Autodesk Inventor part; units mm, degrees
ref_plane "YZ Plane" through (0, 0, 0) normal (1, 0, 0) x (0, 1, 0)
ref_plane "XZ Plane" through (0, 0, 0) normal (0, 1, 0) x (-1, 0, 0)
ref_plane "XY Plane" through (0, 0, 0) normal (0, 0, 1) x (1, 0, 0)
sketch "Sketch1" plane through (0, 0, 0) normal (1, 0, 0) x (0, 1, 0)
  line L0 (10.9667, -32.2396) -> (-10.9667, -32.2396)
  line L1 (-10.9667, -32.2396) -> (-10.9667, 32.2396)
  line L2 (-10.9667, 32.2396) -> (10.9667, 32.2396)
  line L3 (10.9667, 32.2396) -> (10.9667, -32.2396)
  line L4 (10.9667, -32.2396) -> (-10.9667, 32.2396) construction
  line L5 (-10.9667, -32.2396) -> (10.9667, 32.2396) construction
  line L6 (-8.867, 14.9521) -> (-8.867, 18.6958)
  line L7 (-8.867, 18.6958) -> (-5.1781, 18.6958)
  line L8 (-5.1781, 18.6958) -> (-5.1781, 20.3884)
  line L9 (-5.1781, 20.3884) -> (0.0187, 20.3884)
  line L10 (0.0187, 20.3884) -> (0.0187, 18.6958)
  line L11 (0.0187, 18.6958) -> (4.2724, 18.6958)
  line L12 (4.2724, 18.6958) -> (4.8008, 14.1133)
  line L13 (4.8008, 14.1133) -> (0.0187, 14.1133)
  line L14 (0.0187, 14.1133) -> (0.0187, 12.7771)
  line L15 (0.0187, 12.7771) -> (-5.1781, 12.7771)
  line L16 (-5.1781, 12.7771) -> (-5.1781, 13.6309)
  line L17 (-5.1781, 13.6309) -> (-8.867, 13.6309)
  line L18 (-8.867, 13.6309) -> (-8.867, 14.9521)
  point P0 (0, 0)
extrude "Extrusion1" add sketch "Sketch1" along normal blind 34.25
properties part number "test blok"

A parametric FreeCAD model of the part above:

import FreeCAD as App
import Part
import Sketcher
from FreeCAD import Vector

doc = App.newDocument("Part")
body = doc.addObject("PartDesign::Body", "Body")

sketch1 = body.newObject("Sketcher::SketchObject", "Sketch")
sketch1.AttachmentSupport = (doc.getObject("YZ_Plane"), [""])
sketch1.MapMode = "FlatFace"
sketch1.addGeometry([
    Part.LineSegment(Vector(-10.9667, -32.2396, 0), Vector(10.9667, -32.2396, 0)),
    Part.LineSegment(Vector(10.9667, -32.2396, 0), Vector(10.9667, 32.2396, 0)),
    Part.LineSegment(Vector(10.9667, 32.2396, 0), Vector(-10.9667, 32.2396, 0)),
    Part.LineSegment(Vector(-10.9667, 32.2396, 0), Vector(-10.9667, -32.2396, 0)),
    Part.LineSegment(Vector(-8.867, 13.6309, 0), Vector(-8.867, 18.6958, 0)),
    Part.LineSegment(Vector(-8.867, 18.6958, 0), Vector(-5.1781, 18.6958, 0)),
    Part.LineSegment(Vector(-5.1781, 18.6958, 0), Vector(-5.1781, 20.3884, 0)),
    Part.LineSegment(Vector(-5.1781, 20.3884, 0), Vector(0.0187, 20.3884, 0)),
    Part.LineSegment(Vector(0.0187, 20.3884, 0), Vector(0.0187, 18.6958, 0)),
    Part.LineSegment(Vector(0.0187, 18.6958, 0), Vector(4.2724, 18.6958, 0)),
    Part.LineSegment(Vector(4.2724, 18.6958, 0), Vector(4.8008, 14.1133, 0)),
    Part.LineSegment(Vector(4.8008, 14.1133, 0), Vector(0.0187, 14.1133, 0)),
    Part.LineSegment(Vector(0.0187, 14.1133, 0), Vector(0.0187, 12.7771, 0)),
    Part.LineSegment(Vector(0.0187, 12.7771, 0), Vector(-5.1781, 12.7771, 0)),
    Part.LineSegment(Vector(-5.1781, 12.7771, 0), Vector(-5.1781, 13.6309, 0)),
    Part.LineSegment(Vector(-5.1781, 13.6309, 0), Vector(-8.867, 13.6309, 0)),
], False)
sketch1.addConstraint([
    Sketcher.Constraint("Coincident", 0, 2, 1, 1),
    Sketcher.Constraint("Coincident", 1, 2, 2, 1),
    Sketcher.Constraint("Coincident", 2, 2, 3, 1),
    Sketcher.Constraint("Coincident", 3, 2, 0, 1),
    Sketcher.Constraint("Coincident", 4, 2, 5, 1),
    Sketcher.Constraint("Coincident", 5, 2, 6, 1),
    Sketcher.Constraint("Coincident", 6, 2, 7, 1),
    Sketcher.Constraint("Coincident", 7, 2, 8, 1),
    Sketcher.Constraint("Coincident", 8, 2, 9, 1),
    Sketcher.Constraint("Coincident", 9, 2, 10, 1),
    Sketcher.Constraint("Coincident", 10, 2, 11, 1),
    Sketcher.Constraint("Coincident", 11, 2, 12, 1),
    Sketcher.Constraint("Coincident", 12, 2, 13, 1),
    Sketcher.Constraint("Coincident", 13, 2, 14, 1),
    Sketcher.Constraint("Coincident", 14, 2, 15, 1),
    Sketcher.Constraint("Coincident", 15, 2, 4, 1),
    Sketcher.Constraint("Horizontal", 0),
    Sketcher.Constraint("Vertical", 1),
    Sketcher.Constraint("Horizontal", 2),
    Sketcher.Constraint("Vertical", 3),
    Sketcher.Constraint("Vertical", 4),
    Sketcher.Constraint("Horizontal", 5),
    Sketcher.Constraint("Vertical", 6),
    Sketcher.Constraint("Horizontal", 7),
    Sketcher.Constraint("Vertical", 8),
    Sketcher.Constraint("Horizontal", 9),
    Sketcher.Constraint("Horizontal", 11),
    Sketcher.Constraint("Vertical", 12),
    Sketcher.Constraint("Horizontal", 13),
    Sketcher.Constraint("Vertical", 14),
    Sketcher.Constraint("Horizontal", 15),
    Sketcher.Constraint("Symmetric", 0, 2, 2, 2, -1, 1),
    Sketcher.Constraint("Horizontal", 5, 2, 8, 2),
    Sketcher.Constraint("Vertical", 8, 2, 11, 2),
    Sketcher.Constraint("Vertical", 6, 2, 13, 2),
    Sketcher.Constraint("DistanceX", 5, 1, 5, 2, 3.689),
    Sketcher.Constraint("DistanceX", 11, 2, 11, 1, 4.782),
    Sketcher.Constraint("DistanceY", 4, 1, 4, 2, 5.065),
    Sketcher.Constraint("DistanceX", 0, 1, 0, 2, 21.9334),
    Sketcher.Constraint("DistanceX", 7, 1, 7, 2, 5.1968),
    Sketcher.Constraint("DistanceX", 9, 1, 9, 2, 4.2537),
    Sketcher.Constraint("DistanceY", 1, 1, 1, 2, 64.4792),
    Sketcher.Constraint("DistanceY", 6, 1, 6, 2, 1.6926),
    Sketcher.Constraint("DistanceY", 12, 2, 12, 1, 1.3362),
    Sketcher.Constraint("DistanceY", 14, 1, 14, 2, 0.8538),
    Sketcher.Constraint("DistanceX", 4, 2, -1, 1, 8.867),
    Sketcher.Constraint("DistanceY", -1, 1, 12, 2, 12.777),
])
pad1 = body.newObject("PartDesign::Pad", "Pad")
pad1.Profile = sketch1
pad1.Length = 34.25

doc.recompute()
